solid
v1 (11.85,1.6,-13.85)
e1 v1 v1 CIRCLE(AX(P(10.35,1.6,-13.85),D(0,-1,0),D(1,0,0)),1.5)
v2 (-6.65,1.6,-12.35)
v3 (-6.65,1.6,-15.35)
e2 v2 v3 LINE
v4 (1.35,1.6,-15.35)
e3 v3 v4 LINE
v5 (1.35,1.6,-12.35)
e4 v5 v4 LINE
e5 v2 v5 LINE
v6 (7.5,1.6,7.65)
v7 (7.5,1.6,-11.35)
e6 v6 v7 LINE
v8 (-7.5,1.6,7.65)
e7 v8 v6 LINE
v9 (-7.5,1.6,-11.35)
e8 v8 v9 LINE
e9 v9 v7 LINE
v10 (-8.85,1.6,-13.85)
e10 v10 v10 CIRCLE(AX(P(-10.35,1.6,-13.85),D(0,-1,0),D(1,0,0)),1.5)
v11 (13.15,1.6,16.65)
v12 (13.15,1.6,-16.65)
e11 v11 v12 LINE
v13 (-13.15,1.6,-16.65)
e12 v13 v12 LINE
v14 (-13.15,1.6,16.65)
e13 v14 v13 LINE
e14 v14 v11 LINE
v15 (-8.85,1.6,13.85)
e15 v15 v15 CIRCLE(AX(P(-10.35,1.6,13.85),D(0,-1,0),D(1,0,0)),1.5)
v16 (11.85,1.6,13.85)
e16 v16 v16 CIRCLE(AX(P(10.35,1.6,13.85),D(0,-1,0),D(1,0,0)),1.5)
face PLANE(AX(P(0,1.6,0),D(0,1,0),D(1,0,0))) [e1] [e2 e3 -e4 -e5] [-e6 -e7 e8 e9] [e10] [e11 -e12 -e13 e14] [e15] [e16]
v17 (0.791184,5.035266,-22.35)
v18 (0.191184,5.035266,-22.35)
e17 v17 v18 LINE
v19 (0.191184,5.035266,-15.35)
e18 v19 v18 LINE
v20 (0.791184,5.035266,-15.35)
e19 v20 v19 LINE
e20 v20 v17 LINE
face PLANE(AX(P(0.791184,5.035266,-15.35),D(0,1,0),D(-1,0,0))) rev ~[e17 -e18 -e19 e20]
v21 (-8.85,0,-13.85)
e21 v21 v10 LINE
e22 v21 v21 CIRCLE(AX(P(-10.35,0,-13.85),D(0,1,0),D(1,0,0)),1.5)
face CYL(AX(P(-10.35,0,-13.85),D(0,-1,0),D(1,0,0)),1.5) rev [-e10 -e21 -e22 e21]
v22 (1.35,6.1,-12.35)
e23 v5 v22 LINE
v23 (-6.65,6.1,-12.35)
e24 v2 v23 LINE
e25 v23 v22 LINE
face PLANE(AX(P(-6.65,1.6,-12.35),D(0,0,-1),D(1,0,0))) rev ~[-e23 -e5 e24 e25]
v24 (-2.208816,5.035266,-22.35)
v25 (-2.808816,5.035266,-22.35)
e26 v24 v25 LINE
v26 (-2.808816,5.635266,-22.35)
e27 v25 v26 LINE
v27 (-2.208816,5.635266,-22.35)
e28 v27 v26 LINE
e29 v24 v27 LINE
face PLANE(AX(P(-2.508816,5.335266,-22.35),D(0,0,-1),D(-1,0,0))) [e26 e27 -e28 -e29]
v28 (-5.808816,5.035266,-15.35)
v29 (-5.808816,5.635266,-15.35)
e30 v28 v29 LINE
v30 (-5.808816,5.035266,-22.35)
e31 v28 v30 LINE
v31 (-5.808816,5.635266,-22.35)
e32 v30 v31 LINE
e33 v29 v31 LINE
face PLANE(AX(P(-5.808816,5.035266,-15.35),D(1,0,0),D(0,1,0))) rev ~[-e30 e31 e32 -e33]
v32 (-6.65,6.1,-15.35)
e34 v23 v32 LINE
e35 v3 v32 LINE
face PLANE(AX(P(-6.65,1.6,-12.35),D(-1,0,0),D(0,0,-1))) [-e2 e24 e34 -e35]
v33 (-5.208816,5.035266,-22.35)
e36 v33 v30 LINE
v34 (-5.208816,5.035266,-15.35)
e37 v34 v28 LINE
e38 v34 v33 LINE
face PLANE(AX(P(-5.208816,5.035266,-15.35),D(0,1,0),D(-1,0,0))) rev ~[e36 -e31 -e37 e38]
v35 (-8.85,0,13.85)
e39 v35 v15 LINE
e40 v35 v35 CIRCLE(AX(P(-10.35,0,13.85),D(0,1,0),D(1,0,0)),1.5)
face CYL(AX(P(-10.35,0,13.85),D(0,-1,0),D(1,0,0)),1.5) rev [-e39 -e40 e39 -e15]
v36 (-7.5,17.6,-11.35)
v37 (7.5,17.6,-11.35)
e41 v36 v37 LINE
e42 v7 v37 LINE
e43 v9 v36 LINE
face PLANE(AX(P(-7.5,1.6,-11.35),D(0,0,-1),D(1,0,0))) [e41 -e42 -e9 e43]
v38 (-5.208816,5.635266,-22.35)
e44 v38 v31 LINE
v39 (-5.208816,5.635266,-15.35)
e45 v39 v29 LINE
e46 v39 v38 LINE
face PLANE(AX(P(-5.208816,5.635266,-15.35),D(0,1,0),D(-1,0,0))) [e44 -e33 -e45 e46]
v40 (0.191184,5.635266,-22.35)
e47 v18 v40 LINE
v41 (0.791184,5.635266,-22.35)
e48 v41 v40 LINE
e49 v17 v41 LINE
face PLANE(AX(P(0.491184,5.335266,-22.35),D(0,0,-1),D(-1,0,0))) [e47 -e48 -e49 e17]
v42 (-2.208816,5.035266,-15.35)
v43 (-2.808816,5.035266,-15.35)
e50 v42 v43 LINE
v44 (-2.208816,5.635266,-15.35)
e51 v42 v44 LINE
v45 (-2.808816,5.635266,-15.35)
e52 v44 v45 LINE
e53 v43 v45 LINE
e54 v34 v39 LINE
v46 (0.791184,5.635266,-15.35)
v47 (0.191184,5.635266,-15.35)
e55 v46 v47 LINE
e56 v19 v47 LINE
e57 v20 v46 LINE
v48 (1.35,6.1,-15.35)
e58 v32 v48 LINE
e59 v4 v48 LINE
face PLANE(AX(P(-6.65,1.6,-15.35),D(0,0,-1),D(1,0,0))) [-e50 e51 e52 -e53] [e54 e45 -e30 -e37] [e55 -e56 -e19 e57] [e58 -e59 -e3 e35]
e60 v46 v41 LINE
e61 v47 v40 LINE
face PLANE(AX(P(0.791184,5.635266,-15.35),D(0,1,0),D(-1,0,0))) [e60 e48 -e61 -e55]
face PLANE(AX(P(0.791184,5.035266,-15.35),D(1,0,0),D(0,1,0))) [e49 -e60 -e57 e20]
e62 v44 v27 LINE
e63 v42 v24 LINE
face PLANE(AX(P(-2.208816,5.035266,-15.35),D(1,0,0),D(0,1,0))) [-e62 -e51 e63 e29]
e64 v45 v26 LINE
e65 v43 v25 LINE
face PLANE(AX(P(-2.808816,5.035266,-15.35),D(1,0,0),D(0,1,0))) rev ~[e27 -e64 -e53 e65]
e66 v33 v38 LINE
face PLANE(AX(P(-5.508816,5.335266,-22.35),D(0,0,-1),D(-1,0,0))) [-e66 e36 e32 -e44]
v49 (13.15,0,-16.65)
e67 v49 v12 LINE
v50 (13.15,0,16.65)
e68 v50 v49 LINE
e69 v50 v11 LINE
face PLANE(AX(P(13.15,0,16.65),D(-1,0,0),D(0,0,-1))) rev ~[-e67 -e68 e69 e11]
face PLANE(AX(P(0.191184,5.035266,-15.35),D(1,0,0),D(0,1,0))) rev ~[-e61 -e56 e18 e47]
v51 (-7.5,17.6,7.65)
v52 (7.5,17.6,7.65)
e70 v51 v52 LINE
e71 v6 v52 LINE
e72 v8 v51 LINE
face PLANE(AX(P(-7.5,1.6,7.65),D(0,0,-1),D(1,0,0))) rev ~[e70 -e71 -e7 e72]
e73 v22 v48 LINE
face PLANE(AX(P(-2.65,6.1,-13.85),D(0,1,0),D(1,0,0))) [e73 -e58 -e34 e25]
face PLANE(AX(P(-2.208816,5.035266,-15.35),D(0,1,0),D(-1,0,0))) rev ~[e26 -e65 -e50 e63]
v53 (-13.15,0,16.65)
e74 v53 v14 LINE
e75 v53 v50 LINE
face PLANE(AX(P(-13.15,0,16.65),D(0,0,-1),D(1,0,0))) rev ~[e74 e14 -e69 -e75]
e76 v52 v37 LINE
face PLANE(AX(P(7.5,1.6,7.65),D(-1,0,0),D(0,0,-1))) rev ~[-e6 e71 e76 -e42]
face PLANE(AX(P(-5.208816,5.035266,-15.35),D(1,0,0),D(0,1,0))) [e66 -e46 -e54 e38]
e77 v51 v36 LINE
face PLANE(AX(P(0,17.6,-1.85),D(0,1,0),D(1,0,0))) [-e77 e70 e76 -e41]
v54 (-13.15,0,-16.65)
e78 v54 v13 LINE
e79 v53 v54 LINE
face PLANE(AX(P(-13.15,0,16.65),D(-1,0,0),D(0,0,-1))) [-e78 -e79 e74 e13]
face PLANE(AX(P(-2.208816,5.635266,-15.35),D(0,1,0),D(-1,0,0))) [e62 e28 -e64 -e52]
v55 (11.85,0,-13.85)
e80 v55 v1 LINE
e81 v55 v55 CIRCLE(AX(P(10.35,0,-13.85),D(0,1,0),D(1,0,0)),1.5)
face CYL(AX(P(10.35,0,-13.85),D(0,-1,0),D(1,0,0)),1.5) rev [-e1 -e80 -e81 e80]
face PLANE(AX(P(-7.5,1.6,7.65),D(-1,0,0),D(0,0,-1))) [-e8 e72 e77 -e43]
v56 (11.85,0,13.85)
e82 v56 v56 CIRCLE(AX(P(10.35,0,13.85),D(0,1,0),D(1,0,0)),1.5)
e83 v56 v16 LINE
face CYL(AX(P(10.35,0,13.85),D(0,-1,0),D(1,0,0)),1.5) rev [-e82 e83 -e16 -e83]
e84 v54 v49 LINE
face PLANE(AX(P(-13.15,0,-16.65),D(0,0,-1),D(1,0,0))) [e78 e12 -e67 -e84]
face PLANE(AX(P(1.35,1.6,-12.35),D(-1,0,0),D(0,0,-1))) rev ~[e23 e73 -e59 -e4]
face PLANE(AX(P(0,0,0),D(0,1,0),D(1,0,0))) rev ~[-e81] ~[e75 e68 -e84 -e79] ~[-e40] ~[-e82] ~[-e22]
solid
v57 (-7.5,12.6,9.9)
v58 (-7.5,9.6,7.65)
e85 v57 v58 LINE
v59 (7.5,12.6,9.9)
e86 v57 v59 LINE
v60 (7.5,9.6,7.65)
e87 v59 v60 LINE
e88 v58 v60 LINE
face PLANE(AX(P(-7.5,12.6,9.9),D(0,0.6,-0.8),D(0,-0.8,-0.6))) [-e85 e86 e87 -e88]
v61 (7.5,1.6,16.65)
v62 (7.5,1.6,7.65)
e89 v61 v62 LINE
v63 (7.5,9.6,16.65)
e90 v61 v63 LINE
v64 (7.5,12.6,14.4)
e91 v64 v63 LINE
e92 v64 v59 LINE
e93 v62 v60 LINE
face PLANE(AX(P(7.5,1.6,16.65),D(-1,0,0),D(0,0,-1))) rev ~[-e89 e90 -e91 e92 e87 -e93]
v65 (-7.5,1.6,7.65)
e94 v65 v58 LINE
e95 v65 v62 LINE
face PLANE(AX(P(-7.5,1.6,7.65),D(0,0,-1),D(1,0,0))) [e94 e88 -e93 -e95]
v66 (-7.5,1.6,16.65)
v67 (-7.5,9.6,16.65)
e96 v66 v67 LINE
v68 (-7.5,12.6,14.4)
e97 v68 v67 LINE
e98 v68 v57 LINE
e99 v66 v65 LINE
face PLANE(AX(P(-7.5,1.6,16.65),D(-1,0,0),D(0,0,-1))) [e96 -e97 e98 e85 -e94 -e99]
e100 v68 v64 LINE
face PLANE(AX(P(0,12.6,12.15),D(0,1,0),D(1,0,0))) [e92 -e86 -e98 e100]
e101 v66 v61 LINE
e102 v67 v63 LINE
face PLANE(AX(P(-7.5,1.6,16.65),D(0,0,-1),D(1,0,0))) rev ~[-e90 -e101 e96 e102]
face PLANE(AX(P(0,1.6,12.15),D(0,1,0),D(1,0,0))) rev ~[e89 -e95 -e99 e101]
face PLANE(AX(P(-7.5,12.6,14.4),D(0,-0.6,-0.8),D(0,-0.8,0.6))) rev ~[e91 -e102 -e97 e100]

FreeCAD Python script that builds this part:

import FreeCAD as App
import Part
import Sketcher
Q = App.Units.Quantity

doc = App.newDocument("Part")
body = doc.addObject("PartDesign::Body", "Body")

# Sketch on XZ plane
sketch1 = body.newObject("Sketcher::SketchObject", "Sketch")
sketch1.AttachmentSupport = (doc.getObject("XZ_Plane"), [""])
sketch1.MapMode = "FlatFace"
sketch1.addGeometry(Part.LineSegment(App.Vector(-13.15, -16.65, 0), App.Vector(-13.15, 16.65, 0)), False)
sketch1.addGeometry(Part.LineSegment(App.Vector(-13.15, 16.65, 0), App.Vector(13.15, 16.65, 0)), False)
sketch1.addGeometry(Part.LineSegment(App.Vector(13.15, 16.65, 0), App.Vector(13.15, -16.65, 0)), False)
sketch1.addGeometry(Part.LineSegment(App.Vector(13.15, -16.65, 0), App.Vector(-13.15, -16.65, 0)), False)
sketch1.addConstraint(Sketcher.Constraint("Coincident", 0, 2, 1, 1))
sketch1.addConstraint(Sketcher.Constraint("Coincident", 1, 2, 2, 1))
sketch1.addConstraint(Sketcher.Constraint("Coincident", 2, 2, 3, 1))
sketch1.addConstraint(Sketcher.Constraint("Coincident", 3, 2, 0, 1))
sketch1.addConstraint(Sketcher.Constraint("Vertical", 0))
sketch1.addConstraint(Sketcher.Constraint("Horizontal", 1))
sketch1.addConstraint(Sketcher.Constraint("Vertical", 2))
sketch1.addConstraint(Sketcher.Constraint("Horizontal", 3))
sketch1.addConstraint(Sketcher.Constraint("Symmetric", 0, 2, 2, 2, -1, 1))
sketch1.addConstraint(Sketcher.Constraint("DistanceX", 1, 1, 1, 2, Q("26.3 mm")))
sketch1.addConstraint(Sketcher.Constraint("DistanceY", 0, 1, 0, 2, Q("33.3 mm")))
pad1 = body.newObject("PartDesign::Pad", "Pad")
pad1.Profile = sketch1
pad1.Length = 1.6
pad1.Reversed = True

# Sketch on XZ plane
sketch2 = body.newObject("Sketcher::SketchObject", "Sketch001")
sketch2.AttachmentSupport = (doc.getObject("XZ_Plane"), [""])
sketch2.MapMode = "FlatFace"
sketch2.AttachmentOffset = App.Placement(App.Vector(0, 0, -1.6), App.Rotation())
sketch2.addGeometry(Part.LineSegment(App.Vector(-7.5, -11.35, 0), App.Vector(-7.5, 7.65, 0)), False)
sketch2.addGeometry(Part.LineSegment(App.Vector(-7.5, 7.65, 0), App.Vector(7.5, 7.65, 0)), False)
sketch2.addGeometry(Part.LineSegment(App.Vector(7.5, 7.65, 0), App.Vector(7.5, -11.35, 0)), False)
sketch2.addGeometry(Part.LineSegment(App.Vector(7.5, -11.35, 0), App.Vector(-7.5, -11.35, 0)), False)
sketch2.addConstraint(Sketcher.Constraint("Coincident", 0, 2, 1, 1))
sketch2.addConstraint(Sketcher.Constraint("Coincident", 1, 2, 2, 1))
sketch2.addConstraint(Sketcher.Constraint("Coincident", 2, 2, 3, 1))
sketch2.addConstraint(Sketcher.Constraint("Coincident", 3, 2, 0, 1))
sketch2.addConstraint(Sketcher.Constraint("Vertical", 0))
sketch2.addConstraint(Sketcher.Constraint("Horizontal", 1))
sketch2.addConstraint(Sketcher.Constraint("Vertical", 2))
sketch2.addConstraint(Sketcher.Constraint("Horizontal", 3))
sketch2.addConstraint(Sketcher.Constraint("DistanceX", 1, 1, 1, 2, Q("15 mm")))
sketch2.addConstraint(Sketcher.Constraint("DistanceY", 0, 1, 0, 2, Q("19 mm")))
sketch2.addConstraint(Sketcher.Constraint("DistanceX", 0, 2, -1, 1, Q("7.5 mm")))
sketch2.addConstraint(Sketcher.Constraint("DistanceY", -1, 1, 0, 2, Q("7.65 mm")))
pad2 = body.newObject("PartDesign::Pad", "Pad001")
pad2.Profile = sketch2
pad2.Length = 16
pad2.Reversed = True

# Sketch on XZ plane
sketch3 = body.newObject("Sketcher::SketchObject", "Sketch002")
sketch3.AttachmentSupport = (doc.getObject("XZ_Plane"), [""])
sketch3.MapMode = "FlatFace"
sketch3.AttachmentOffset = App.Placement(App.Vector(0, 0, -1.6), App.Rotation())
sketch3.addGeometry(Part.LineSegment(App.Vector(-6.65, -15.35, 0), App.Vector(-6.65, -12.35, 0)), False)
sketch3.addGeometry(Part.LineSegment(App.Vector(-6.65, -12.35, 0), App.Vector(1.35, -12.35, 0)), False)
sketch3.addGeometry(Part.LineSegment(App.Vector(1.35, -12.35, 0), App.Vector(1.35, -15.35, 0)), False)
sketch3.addGeometry(Part.LineSegment(App.Vector(1.35, -15.35, 0), App.Vector(-6.65, -15.35, 0)), False)
sketch3.addConstraint(Sketcher.Constraint("Coincident", 0, 2, 1, 1))
sketch3.addConstraint(Sketcher.Constraint("Coincident", 1, 2, 2, 1))
sketch3.addConstraint(Sketcher.Constraint("Coincident", 2, 2, 3, 1))
sketch3.addConstraint(Sketcher.Constraint("Coincident", 3, 2, 0, 1))
sketch3.addConstraint(Sketcher.Constraint("Vertical", 0))
sketch3.addConstraint(Sketcher.Constraint("Horizontal", 1))
sketch3.addConstraint(Sketcher.Constraint("Vertical", 2))
sketch3.addConstraint(Sketcher.Constraint("Horizontal", 3))
sketch3.addConstraint(Sketcher.Constraint("DistanceX", 1, 1, 1, 2, Q("8 mm")))
sketch3.addConstraint(Sketcher.Constraint("DistanceY", 0, 1, 0, 2, Q("3 mm")))
sketch3.addConstraint(Sketcher.Constraint("DistanceX", 0, 2, -1, 1, Q("6.65 mm")))
sketch3.addConstraint(Sketcher.Constraint("DistanceY", 0, 2, -1, 1, Q("12.35 mm")))
pad3 = body.newObject("PartDesign::Pad", "Pad002")
pad3.Profile = sketch3
pad3.Length = 4.5
pad3.Reversed = True

# Sketch on XY plane
sketch4 = body.newObject("Sketcher::SketchObject", "Sketch003")
sketch4.AttachmentSupport = (doc.getObject("XY_Plane"), [""])
sketch4.MapMode = "FlatFace"
sketch4.AttachmentOffset = App.Placement(App.Vector(0, 0, -15.35), App.Rotation())
sketch4.addGeometry(Part.LineSegment(App.Vector(-2.208816, 5.635266, 0), App.Vector(-2.208816, 5.035266, 0)), False)
sketch4.addGeometry(Part.LineSegment(App.Vector(-2.208816, 5.035266, 0), App.Vector(-2.808816, 5.035266, 0)), False)
sketch4.addGeometry(Part.LineSegment(App.Vector(-2.808816, 5.035266, 0), App.Vector(-2.808816, 5.635266, 0)), False)
sketch4.addGeometry(Part.LineSegment(App.Vector(-2.808816, 5.635266, 0), App.Vector(-2.208816, 5.635266, 0)), False)
sketch4.addGeometry(Part.LineSegment(App.Vector(0.791184, 5.635266, 0), App.Vector(0.791184, 5.035266, 0)), False)
sketch4.addGeometry(Part.LineSegment(App.Vector(0.791184, 5.035266, 0), App.Vector(0.191184, 5.035266, 0)), False)
sketch4.addGeometry(Part.LineSegment(App.Vector(0.191184, 5.035266, 0), App.Vector(0.191184, 5.635266, 0)), False)
sketch4.addGeometry(Part.LineSegment(App.Vector(0.191184, 5.635266, 0), App.Vector(0.791184, 5.635266, 0)), False)
sketch4.addGeometry(Part.LineSegment(App.Vector(-5.208816, 5.635266, 0), App.Vector(-5.208816, 5.035266, 0)), False)
sketch4.addGeometry(Part.LineSegment(App.Vector(-5.208816, 5.035266, 0), App.Vector(-5.808816, 5.035266, 0)), False)
sketch4.addGeometry(Part.LineSegment(App.Vector(-5.808816, 5.035266, 0), App.Vector(-5.808816, 5.635266, 0)), False)
sketch4.addGeometry(Part.LineSegment(App.Vector(-5.808816, 5.635266, 0), App.Vector(-5.208816, 5.635266, 0)), False)
sketch4.addConstraint(Sketcher.Constraint("Coincident", 0, 2, 1, 1))
sketch4.addConstraint(Sketcher.Constraint("Coincident", 1, 2, 2, 1))
sketch4.addConstraint(Sketcher.Constraint("Coincident", 2, 2, 3, 1))
sketch4.addConstraint(Sketcher.Constraint("Coincident", 3, 2, 0, 1))
sketch4.addConstraint(Sketcher.Constraint("Coincident", 4, 2, 5, 1))
sketch4.addConstraint(Sketcher.Constraint("Coincident", 5, 2, 6, 1))
sketch4.addConstraint(Sketcher.Constraint("Coincident", 6, 2, 7, 1))
sketch4.addConstraint(Sketcher.Constraint("Coincident", 7, 2, 4, 1))
sketch4.addConstraint(Sketcher.Constraint("Coincident", 8, 2, 9, 1))
sketch4.addConstraint(Sketcher.Constraint("Coincident", 9, 2, 10, 1))
sketch4.addConstraint(Sketcher.Constraint("Coincident", 10, 2, 11, 1))
sketch4.addConstraint(Sketcher.Constraint("Coincident", 11, 2, 8, 1))
sketch4.addConstraint(Sketcher.Constraint("Vertical", 0))
sketch4.addConstraint(Sketcher.Constraint("Horizontal", 1))
sketch4.addConstraint(Sketcher.Constraint("Vertical", 2))
sketch4.addConstraint(Sketcher.Constraint("Horizontal", 3))
sketch4.addConstraint(Sketcher.Constraint("Vertical", 4))
sketch4.addConstraint(Sketcher.Constraint("Horizontal", 5))
sketch4.addConstraint(Sketcher.Constraint("Vertical", 6))
sketch4.addConstraint(Sketcher.Constraint("Horizontal", 7))
sketch4.addConstraint(Sketcher.Constraint("Vertical", 8))
sketch4.addConstraint(Sketcher.Constraint("Horizontal", 9))
sketch4.addConstraint(Sketcher.Constraint("Vertical", 10))
sketch4.addConstraint(Sketcher.Constraint("Horizontal", 11))
sketch4.addConstraint(Sketcher.Constraint("Horizontal", 1, 2, 4, 2))
sketch4.addConstraint(Sketcher.Constraint("Horizontal", 3, 2, 6, 2))
sketch4.addConstraint(Sketcher.Constraint("Horizontal", 5, 2, 8, 2))
sketch4.addConstraint(Sketcher.Constraint("Horizontal", 7, 2, 10, 2))
sketch4.addConstraint(Sketcher.Constraint("Equal", 3, 5))
sketch4.addConstraint(Sketcher.Constraint("Equal", 7, 9))
sketch4.addConstraint(Sketcher.Constraint("Equal", 11, 0))
sketch4.addConstraint(Sketcher.Constraint("DistanceX", 1, 2, 1, 1, Q("0.6 mm")))
sketch4.addConstraint(Sketcher.Constraint("DistanceX", 0, 2, 4, 2, Q("3 mm")))
sketch4.addConstraint(Sketcher.Constraint("DistanceX", 8, 2, 0, 2, Q("3 mm")))
sketch4.addConstraint(Sketcher.Constraint("DistanceX", 0, 2, -1, 1, Q("2.208816 mm")))
sketch4.addConstraint(Sketcher.Constraint("DistanceY", -1, 1, 0, 2, Q("5.035266 mm")))
pad4 = body.newObject("PartDesign::Pad", "Pad003")
pad4.Profile = sketch4
pad4.Length = 7
pad4.Reversed = True

# Sketch on XZ plane
sketch5 = body.newObject("Sketcher::SketchObject", "Sketch004")
sketch5.AttachmentSupport = (doc.getObject("XZ_Plane"), [""])
sketch5.MapMode = "FlatFace"
sketch5.addGeometry(Part.Circle(App.Vector(-10.35, 13.85, 0), App.Vector(0, 0, 1), 1.5), False)
sketch5.addGeometry(Part.Circle(App.Vector(10.35, 13.85, 0), App.Vector(0, 0, 1), 1.5), False)
sketch5.addGeometry(Part.Circle(App.Vector(10.35, -13.85, 0), App.Vector(0, 0, 1), 1.5), False)
sketch5.addGeometry(Part.Circle(App.Vector(-10.35, -13.85, 0), App.Vector(0, 0, 1), 1.5), False)
sketch5.addConstraint(Sketcher.Constraint("Equal", 0, 1))
sketch5.addConstraint(Sketcher.Constraint("Equal", 1, 2))
sketch5.addConstraint(Sketcher.Constraint("Equal", 2, 3))
sketch5.addConstraint(Sketcher.Constraint("Symmetric", 0, 3, 2, 3, -1, 1))
sketch5.addConstraint(Sketcher.Constraint("Symmetric", 1, 3, 3, 3, -1, 1))
sketch5.addConstraint(Sketcher.Constraint("Symmetric", 0, 3, 1, 3, -2))
sketch5.addConstraint(Sketcher.Constraint("Diameter", 0, Q("3 mm")))
sketch5.addConstraint(Sketcher.Constraint("DistanceX", 0, 3, 1, 3, Q("20.7 mm")))
sketch5.addConstraint(Sketcher.Constraint("DistanceY", 2, 3, 1, 3, Q("27.7 mm")))
pocket1 = body.newObject("PartDesign::Pocket", "Pocket")
pocket1.Profile = sketch5
pocket1.Type = "ThroughAll"
body2 = doc.addObject("PartDesign::Body", "Body001")

# Sketch on XZ plane
sketch6 = body2.newObject("Sketcher::SketchObject", "Sketch005")
sketch6.AttachmentSupport = (doc.getObject("XZ_Plane001"), [""])
sketch6.MapMode = "FlatFace"
sketch6.AttachmentOffset = App.Placement(App.Vector(0, 0, -1.6), App.Rotation())
sketch6.addGeometry(Part.LineSegment(App.Vector(-7.5, 7.65, 0), App.Vector(-7.5, 16.65, 0)), False)
sketch6.addGeometry(Part.LineSegment(App.Vector(-7.5, 16.65, 0), App.Vector(7.5, 16.65, 0)), False)
sketch6.addGeometry(Part.LineSegment(App.Vector(7.5, 16.65, 0), App.Vector(7.5, 7.65, 0)), False)
sketch6.addGeometry(Part.LineSegment(App.Vector(7.5, 7.65, 0), App.Vector(-7.5, 7.65, 0)), False)
sketch6.addConstraint(Sketcher.Constraint("Coincident", 0, 2, 1, 1))
sketch6.addConstraint(Sketcher.Constraint("Coincident", 1, 2, 2, 1))
sketch6.addConstraint(Sketcher.Constraint("Coincident", 2, 2, 3, 1))
sketch6.addConstraint(Sketcher.Constraint("Coincident", 3, 2, 0, 1))
sketch6.addConstraint(Sketcher.Constraint("Vertical", 0))
sketch6.addConstraint(Sketcher.Constraint("Horizontal", 1))
sketch6.addConstraint(Sketcher.Constraint("Vertical", 2))
sketch6.addConstraint(Sketcher.Constraint("Horizontal", 3))
sketch6.addConstraint(Sketcher.Constraint("DistanceX", 1, 1, 1, 2, Q("15 mm")))
sketch6.addConstraint(Sketcher.Constraint("DistanceY", 0, 1, 0, 2, Q("9 mm")))
sketch6.addConstraint(Sketcher.Constraint("DistanceX", 0, 2, -1, 1, Q("7.5 mm")))
sketch6.addConstraint(Sketcher.Constraint("DistanceY", -1, 1, 0, 2, Q("16.65 mm")))
pad5 = body2.newObject("PartDesign::Pad", "Pad004")
pad5.Profile = sketch6
pad5.Length = 11
pad5.Reversed = True

# Sketch on YZ plane
sketch7 = body2.newObject("Sketcher::SketchObject", "Sketch006")
sketch7.AttachmentSupport = (doc.getObject("YZ_Plane001"), [""])
sketch7.MapMode = "FlatFace"
sketch7.AttachmentOffset = App.Placement(App.Vector(0, 0, -7.5), App.Rotation())
sketch7.addGeometry(Part.LineSegment(App.Vector(9.6, 7.65, 0), App.Vector(12.6, 9.9, 0)), False)
sketch7.addGeometry(Part.LineSegment(App.Vector(12.6, 9.9, 0), App.Vector(12.6, 7.65, 0)), False)
sketch7.addGeometry(Part.LineSegment(App.Vector(12.6, 7.65, 0), App.Vector(9.6, 7.65, 0)), False)
sketch7.addGeometry(Part.LineSegment(App.Vector(9.6, 16.65, 0), App.Vector(12.6, 16.65, 0)), False)
sketch7.addGeometry(Part.LineSegment(App.Vector(12.6, 16.65, 0), App.Vector(12.6, 14.4, 0)), False)
sketch7.addGeometry(Part.LineSegment(App.Vector(12.6, 14.4, 0), App.Vector(9.6, 16.65, 0)), False)
sketch7.addConstraint(Sketcher.Constraint("Coincident", 0, 2, 1, 1))
sketch7.addConstraint(Sketcher.Constraint("Coincident", 1, 2, 2, 1))
sketch7.addConstraint(Sketcher.Constraint("Coincident", 2, 2, 0, 1))
sketch7.addConstraint(Sketcher.Constraint("Coincident", 3, 2, 4, 1))
sketch7.addConstraint(Sketcher.Constraint("Coincident", 4, 2, 5, 1))
sketch7.addConstraint(Sketcher.Constraint("Coincident", 5, 2, 3, 1))
sketch7.addConstraint(Sketcher.Constraint("Vertical", 1))
sketch7.addConstraint(Sketcher.Constraint("Horizontal", 2))
sketch7.addConstraint(Sketcher.Constraint("Horizontal", 3))
sketch7.addConstraint(Sketcher.Constraint("Vertical", 4))
sketch7.addConstraint(Sketcher.Constraint("Vertical", 1, 2, 3, 2))
sketch7.addConstraint(Sketcher.Constraint("Vertical", 2, 2, 5, 2))
sketch7.addConstraint(Sketcher.Constraint("Equal", 1, 4))
sketch7.addConstraint(Sketcher.Constraint("DistanceX", 2, 2, 2, 1, Q("3 mm")))
sketch7.addConstraint(Sketcher.Constraint("DistanceY", 1, 2, 3, 2, Q("9 mm")))
sketch7.addConstraint(Sketcher.Constraint("DistanceY", 1, 2, 1, 1, Q("2.25 mm")))
sketch7.addConstraint(Sketcher.Constraint("DistanceX", -1, 1, 0, 2, Q("12.6 mm")))
sketch7.addConstraint(Sketcher.Constraint("DistanceY", -1, 1, 0, 2, Q("9.9 mm")))
pocket2 = body2.newObject("PartDesign::Pocket", "Pocket001")
pocket2.Profile = sketch7
pocket2.Type = "ThroughAll"
pocket2.Reversed = True

doc.recompute()
